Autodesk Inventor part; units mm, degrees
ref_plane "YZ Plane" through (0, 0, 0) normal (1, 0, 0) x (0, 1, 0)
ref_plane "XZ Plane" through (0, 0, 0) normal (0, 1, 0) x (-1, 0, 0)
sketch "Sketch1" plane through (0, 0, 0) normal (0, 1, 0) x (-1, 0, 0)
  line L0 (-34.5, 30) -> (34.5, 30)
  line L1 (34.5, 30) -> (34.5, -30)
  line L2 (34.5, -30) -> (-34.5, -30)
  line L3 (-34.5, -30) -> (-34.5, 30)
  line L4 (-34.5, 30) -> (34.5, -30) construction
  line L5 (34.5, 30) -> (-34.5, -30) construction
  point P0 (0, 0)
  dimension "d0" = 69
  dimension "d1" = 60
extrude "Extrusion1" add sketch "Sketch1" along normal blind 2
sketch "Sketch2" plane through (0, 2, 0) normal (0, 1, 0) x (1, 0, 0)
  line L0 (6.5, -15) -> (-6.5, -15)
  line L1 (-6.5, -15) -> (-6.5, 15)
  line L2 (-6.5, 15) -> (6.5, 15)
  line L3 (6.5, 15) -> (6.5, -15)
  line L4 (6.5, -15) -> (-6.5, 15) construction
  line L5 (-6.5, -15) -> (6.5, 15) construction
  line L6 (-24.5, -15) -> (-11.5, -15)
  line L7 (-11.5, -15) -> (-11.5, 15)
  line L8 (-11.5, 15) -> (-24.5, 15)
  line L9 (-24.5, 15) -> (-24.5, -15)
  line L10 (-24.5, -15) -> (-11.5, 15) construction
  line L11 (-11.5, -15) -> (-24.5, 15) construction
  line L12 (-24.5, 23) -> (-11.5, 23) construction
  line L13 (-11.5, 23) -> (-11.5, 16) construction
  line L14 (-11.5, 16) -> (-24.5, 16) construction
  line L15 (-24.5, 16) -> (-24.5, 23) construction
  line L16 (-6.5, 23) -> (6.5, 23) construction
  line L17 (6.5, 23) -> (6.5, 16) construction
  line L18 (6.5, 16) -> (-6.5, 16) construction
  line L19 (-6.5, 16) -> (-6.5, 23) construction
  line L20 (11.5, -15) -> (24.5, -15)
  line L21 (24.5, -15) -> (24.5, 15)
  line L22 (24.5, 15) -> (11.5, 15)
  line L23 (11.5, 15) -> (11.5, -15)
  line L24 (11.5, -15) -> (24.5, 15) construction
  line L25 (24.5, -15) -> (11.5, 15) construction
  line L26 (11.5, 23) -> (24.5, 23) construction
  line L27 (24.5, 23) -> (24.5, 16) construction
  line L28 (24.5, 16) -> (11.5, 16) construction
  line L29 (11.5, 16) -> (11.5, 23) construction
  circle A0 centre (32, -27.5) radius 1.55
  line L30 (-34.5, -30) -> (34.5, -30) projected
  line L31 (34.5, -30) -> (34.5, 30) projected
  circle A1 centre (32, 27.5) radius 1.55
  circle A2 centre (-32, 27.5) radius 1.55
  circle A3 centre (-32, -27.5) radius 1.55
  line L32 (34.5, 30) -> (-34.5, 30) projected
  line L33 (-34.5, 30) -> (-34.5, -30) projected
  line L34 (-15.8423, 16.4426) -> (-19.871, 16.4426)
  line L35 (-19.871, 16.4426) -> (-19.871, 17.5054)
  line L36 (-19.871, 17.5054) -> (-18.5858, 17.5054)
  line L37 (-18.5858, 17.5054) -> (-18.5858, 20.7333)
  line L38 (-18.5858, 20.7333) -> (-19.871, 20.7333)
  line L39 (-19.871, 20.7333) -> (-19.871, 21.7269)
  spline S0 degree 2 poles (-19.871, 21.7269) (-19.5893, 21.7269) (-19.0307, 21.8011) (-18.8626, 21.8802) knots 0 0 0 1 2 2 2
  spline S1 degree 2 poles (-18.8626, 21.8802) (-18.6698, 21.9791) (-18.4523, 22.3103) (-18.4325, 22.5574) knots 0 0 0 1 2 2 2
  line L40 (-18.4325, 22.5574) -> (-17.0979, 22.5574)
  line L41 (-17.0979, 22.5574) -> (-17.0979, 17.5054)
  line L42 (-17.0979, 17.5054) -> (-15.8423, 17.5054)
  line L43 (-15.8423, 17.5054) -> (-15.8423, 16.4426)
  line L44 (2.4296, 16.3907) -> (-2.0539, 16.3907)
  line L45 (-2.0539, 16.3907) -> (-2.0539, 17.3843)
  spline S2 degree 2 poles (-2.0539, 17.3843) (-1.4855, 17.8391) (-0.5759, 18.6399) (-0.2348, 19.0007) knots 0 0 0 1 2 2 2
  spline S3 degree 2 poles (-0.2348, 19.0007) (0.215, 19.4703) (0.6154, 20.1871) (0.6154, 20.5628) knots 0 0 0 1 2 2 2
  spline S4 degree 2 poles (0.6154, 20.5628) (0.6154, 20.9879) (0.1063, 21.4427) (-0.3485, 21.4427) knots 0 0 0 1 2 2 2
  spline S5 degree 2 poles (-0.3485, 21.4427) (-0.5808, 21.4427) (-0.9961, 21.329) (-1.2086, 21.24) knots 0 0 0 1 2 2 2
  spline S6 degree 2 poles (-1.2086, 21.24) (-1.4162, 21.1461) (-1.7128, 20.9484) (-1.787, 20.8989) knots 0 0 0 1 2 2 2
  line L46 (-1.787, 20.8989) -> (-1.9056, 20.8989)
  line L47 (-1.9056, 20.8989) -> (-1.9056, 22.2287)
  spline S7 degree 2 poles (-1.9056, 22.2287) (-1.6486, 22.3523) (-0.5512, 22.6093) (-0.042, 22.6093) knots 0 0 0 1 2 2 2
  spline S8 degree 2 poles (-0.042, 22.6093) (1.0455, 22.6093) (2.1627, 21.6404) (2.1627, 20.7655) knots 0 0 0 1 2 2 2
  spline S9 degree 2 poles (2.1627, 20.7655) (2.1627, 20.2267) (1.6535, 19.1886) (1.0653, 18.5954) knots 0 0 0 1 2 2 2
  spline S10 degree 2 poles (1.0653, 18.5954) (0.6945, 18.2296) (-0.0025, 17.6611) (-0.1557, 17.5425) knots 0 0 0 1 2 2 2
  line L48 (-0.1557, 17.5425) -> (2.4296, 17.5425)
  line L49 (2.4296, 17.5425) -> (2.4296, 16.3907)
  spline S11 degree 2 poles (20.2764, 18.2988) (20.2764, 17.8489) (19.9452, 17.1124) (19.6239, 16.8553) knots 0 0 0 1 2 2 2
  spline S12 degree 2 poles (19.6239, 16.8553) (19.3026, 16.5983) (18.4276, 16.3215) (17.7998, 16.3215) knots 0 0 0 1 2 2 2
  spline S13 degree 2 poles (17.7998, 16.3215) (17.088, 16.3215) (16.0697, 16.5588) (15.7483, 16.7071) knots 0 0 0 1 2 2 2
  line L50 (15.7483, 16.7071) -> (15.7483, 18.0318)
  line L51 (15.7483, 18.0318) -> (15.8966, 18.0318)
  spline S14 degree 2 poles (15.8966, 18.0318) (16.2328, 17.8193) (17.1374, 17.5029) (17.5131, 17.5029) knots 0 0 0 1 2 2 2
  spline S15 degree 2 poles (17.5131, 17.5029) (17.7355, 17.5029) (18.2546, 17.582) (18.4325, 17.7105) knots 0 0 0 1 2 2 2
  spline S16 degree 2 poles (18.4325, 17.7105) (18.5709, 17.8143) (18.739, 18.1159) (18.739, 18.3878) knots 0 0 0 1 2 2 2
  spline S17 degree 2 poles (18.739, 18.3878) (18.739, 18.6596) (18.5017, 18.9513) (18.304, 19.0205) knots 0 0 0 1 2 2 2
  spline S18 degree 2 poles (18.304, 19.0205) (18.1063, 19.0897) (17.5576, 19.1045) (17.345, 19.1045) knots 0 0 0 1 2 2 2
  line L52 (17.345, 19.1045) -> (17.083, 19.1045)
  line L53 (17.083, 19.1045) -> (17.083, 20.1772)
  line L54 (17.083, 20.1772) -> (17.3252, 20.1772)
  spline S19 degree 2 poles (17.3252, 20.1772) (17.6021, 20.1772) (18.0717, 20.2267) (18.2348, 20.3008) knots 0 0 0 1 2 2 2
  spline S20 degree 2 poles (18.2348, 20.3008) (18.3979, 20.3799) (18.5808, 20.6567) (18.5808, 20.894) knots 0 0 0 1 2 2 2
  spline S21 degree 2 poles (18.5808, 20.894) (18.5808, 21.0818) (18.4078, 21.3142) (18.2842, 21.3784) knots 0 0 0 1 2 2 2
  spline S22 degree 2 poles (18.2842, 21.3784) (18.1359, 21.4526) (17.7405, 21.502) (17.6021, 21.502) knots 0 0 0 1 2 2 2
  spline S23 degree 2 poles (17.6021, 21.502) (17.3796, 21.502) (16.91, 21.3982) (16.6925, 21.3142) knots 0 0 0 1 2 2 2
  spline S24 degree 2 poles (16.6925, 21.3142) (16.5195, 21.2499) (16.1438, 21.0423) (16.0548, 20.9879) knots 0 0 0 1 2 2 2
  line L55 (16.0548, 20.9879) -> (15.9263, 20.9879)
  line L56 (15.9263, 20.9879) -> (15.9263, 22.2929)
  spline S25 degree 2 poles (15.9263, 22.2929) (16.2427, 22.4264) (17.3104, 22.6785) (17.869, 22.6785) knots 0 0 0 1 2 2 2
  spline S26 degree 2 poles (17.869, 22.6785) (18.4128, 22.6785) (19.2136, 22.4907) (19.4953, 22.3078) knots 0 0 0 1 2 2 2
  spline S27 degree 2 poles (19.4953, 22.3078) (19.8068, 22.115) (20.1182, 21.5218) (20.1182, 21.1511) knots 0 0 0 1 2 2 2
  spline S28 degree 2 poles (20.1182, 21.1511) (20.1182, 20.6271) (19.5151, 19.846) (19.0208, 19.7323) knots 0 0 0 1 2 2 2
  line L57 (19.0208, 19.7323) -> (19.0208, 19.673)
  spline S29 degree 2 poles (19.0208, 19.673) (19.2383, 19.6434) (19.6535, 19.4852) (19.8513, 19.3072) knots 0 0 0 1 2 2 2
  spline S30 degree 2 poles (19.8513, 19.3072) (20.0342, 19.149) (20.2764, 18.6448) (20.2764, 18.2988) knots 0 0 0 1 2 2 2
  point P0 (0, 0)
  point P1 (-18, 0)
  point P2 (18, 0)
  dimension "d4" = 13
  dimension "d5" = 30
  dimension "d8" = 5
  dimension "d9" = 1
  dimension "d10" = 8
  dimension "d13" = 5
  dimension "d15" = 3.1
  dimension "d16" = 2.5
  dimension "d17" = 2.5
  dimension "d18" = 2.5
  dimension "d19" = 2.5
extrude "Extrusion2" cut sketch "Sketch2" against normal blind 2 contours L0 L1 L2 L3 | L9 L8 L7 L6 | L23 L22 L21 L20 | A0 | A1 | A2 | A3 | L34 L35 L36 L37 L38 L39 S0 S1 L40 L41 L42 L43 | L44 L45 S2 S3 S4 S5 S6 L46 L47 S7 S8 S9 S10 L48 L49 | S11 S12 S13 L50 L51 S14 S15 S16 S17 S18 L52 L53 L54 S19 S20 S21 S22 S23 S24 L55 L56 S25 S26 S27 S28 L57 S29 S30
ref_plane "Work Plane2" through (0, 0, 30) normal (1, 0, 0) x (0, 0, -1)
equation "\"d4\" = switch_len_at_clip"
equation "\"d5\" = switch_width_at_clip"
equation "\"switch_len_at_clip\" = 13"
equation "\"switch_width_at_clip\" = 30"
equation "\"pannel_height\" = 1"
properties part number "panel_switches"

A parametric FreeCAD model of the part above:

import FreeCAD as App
import Part
import Sketcher

V = App.Vector


def add_polygon(sketch, points):
    """Adds a closed chain of lines whose ends are joined by coincident constraints."""
    first, n = sketch.GeometryCount, len(points)
    for a, b in zip(points, points[1:] + points[:1]):
        sketch.addGeometry(Part.LineSegment(App.Vector(*a, 0), App.Vector(*b, 0)), False)
    for i in range(n):
        sketch.addConstraint(Sketcher.Constraint("Coincident", first + i, 2, first + (i + 1) % n, 1))

doc = App.newDocument("Part")
body = doc.addObject("PartDesign::Body", "Body")

sketch1 = body.newObject("Sketcher::SketchObject", "Sketch")
sketch1.AttachmentSupport = (doc.getObject("XZ_Plane"), [""])
sketch1.MapMode = "FlatFace"
add_polygon(sketch1, [(-34.5, 30), (34.5, 30), (34.5, -30), (-34.5, -30)])
sketch1.addConstraint(Sketcher.Constraint("Horizontal", 0))
sketch1.addConstraint(Sketcher.Constraint("Vertical", 1))
sketch1.addConstraint(Sketcher.Constraint("Horizontal", 2))
sketch1.addConstraint(Sketcher.Constraint("Vertical", 3))
sketch1.addConstraint(Sketcher.Constraint("Symmetric", 0, 2, 2, 2, -1, 1))
sketch1.addConstraint(Sketcher.Constraint("DistanceX", 0, 1, 0, 2, 69.0))
sketch1.addConstraint(Sketcher.Constraint("DistanceY", 1, 2, 1, 1, 60.0))
pad1 = body.newObject("PartDesign::Pad", "Pad")
pad1.Profile = sketch1
pad1.Length = 2
pad1.Reversed = True

sketch2 = body.newObject("Sketcher::SketchObject", "Sketch001")
sketch2.AttachmentSupport = (doc.getObject("XZ_Plane"), [""])
sketch2.MapMode = "FlatFace"
sketch2.AttachmentOffset = App.Placement(V(0, 0, -2), App.Rotation())
add_polygon(sketch2, [(-6.5, 15), (6.5, 15), (6.5, -15), (-6.5, -15)])
add_polygon(sketch2, [(-24.5, -15), (-24.5, 15), (-11.5, 15), (-11.5, -15)])
add_polygon(sketch2, [(11.5, -15), (11.5, 15), (24.5, 15), (24.5, -15)])
sketch2.addGeometry(Part.Circle(V(32, 27.5, 0), V(0, 0, 1), 1.55), False)
sketch2.addGeometry(Part.Circle(V(32, -27.5, 0), V(0, 0, 1), 1.55), False)
sketch2.addGeometry(Part.Circle(V(-32, -27.5, 0), V(0, 0, 1), 1.55), False)
sketch2.addGeometry(Part.Circle(V(-32, 27.5, 0), V(0, 0, 1), 1.55), False)
sketch2.addGeometry(Part.LineSegment(V(-19.871, -16.4426, 0), V(-15.8423, -16.4426, 0)), False)
sketch2.addGeometry(Part.LineSegment(V(-15.8423, -16.4426, 0), V(-15.8423, -17.5054, 0)), False)
sketch2.addGeometry(Part.LineSegment(V(-15.8423, -17.5054, 0), V(-17.0979, -17.5054, 0)), False)
sketch2.addGeometry(Part.LineSegment(V(-17.0979, -17.5054, 0), V(-17.0979, -22.5574, 0)), False)
sketch2.addGeometry(Part.LineSegment(V(-17.0979, -22.5574, 0), V(-18.4325, -22.5574, 0)), False)
sketch2.addGeometry(Part.BSplineCurve([V(-18.8626, -21.8802, 0), V(-18.6698, -21.9791, 0), V(-18.4523, -22.3103, 0), V(-18.4325, -22.5574, 0)], [3, 1, 3], [0, 1, 2], False, 2, [1, 1, 1, 1], False), False)
sketch2.addGeometry(Part.BSplineCurve([V(-19.871, -21.7269, 0), V(-19.5893, -21.7269, 0), V(-19.0307, -21.8011, 0), V(-18.8626, -21.8802, 0)], [3, 1, 3], [0, 1, 2], False, 2, [1, 1, 1, 1], False), False)
sketch2.addGeometry(Part.LineSegment(V(-19.871, -21.7269, 0), V(-19.871, -20.7333, 0)), False)
sketch2.addGeometry(Part.LineSegment(V(-19.871, -20.7333, 0), V(-18.5858, -20.7333, 0)), False)
sketch2.addGeometry(Part.LineSegment(V(-18.5858, -20.7333, 0), V(-18.5858, -17.5054, 0)), False)
sketch2.addGeometry(Part.LineSegment(V(-18.5858, -17.5054, 0), V(-19.871, -17.5054, 0)), False)
sketch2.addGeometry(Part.LineSegment(V(-19.871, -17.5054, 0), V(-19.871, -16.4426, 0)), False)
sketch2.addGeometry(Part.LineSegment(V(-2.0539, -16.3907, 0), V(2.4296, -16.3907, 0)), False)
sketch2.addGeometry(Part.LineSegment(V(2.4296, -16.3907, 0), V(2.4296, -17.5425, 0)), False)
sketch2.addGeometry(Part.LineSegment(V(2.4296, -17.5425, 0), V(-0.1557, -17.5425, 0)), False)
sketch2.addGeometry(Part.BSplineCurve([V(1.0653, -18.5954, 0), V(0.6945, -18.2296, 0), V(-0.0025, -17.6611, 0), V(-0.1557, -17.5425, 0)], [3, 1, 3], [0, 1, 2], False, 2, [1, 1, 1, 1], False), False)
sketch2.addGeometry(Part.BSplineCurve([V(2.1627, -20.7655, 0), V(2.1627, -20.2267, 0), V(1.6535, -19.1886, 0), V(1.0653, -18.5954, 0)], [3, 1, 3], [0, 1, 2], False, 2, [1, 1, 1, 1], False), False)
sketch2.addGeometry(Part.BSplineCurve([V(-0.042, -22.6093, 0), V(1.0455, -22.6093, 0), V(2.1627, -21.6404, 0), V(2.1627, -20.7655, 0)], [3, 1, 3], [0, 1, 2], False, 2, [1, 1, 1, 1], False), False)
sketch2.addGeometry(Part.BSplineCurve([V(-1.9056, -22.2287, 0), V(-1.6486, -22.3523, 0), V(-0.5512, -22.6093, 0), V(-0.042, -22.6093, 0)], [3, 1, 3], [0, 1, 2], False, 2, [1, 1, 1, 1], False), False)
sketch2.addGeometry(Part.LineSegment(V(-1.9056, -22.2287, 0), V(-1.9056, -20.8989, 0)), False)
sketch2.addGeometry(Part.LineSegment(V(-1.9056, -20.8989, 0), V(-1.787, -20.8989, 0)), False)
sketch2.addGeometry(Part.BSplineCurve([V(-1.2086, -21.24, 0), V(-1.4162, -21.1461, 0), V(-1.7128, -20.9484, 0), V(-1.787, -20.8989, 0)], [3, 1, 3], [0, 1, 2], False, 2, [1, 1, 1, 1], False), False)
sketch2.addGeometry(Part.BSplineCurve([V(-0.3485, -21.4427, 0), V(-0.5808, -21.4427, 0), V(-0.9961, -21.329, 0), V(-1.2086, -21.24, 0)], [3, 1, 3], [0, 1, 2], False, 2, [1, 1, 1, 1], False), False)
sketch2.addGeometry(Part.BSplineCurve([V(0.6154, -20.5628, 0), V(0.6154, -20.9879, 0), V(0.1063, -21.4427, 0), V(-0.3485, -21.4427, 0)], [3, 1, 3], [0, 1, 2], False, 2, [1, 1, 1, 1], False), False)
sketch2.addGeometry(Part.BSplineCurve([V(-0.2348, -19.0007, 0), V(0.215, -19.4703, 0), V(0.6154, -20.1871, 0), V(0.6154, -20.5628, 0)], [3, 1, 3], [0, 1, 2], False, 2, [1, 1, 1, 1], False), False)
sketch2.addGeometry(Part.BSplineCurve([V(-2.0539, -17.3843, 0), V(-1.4855, -17.8391, 0), V(-0.5759, -18.6399, 0), V(-0.2348, -19.0007, 0)], [3, 1, 3], [0, 1, 2], False, 2, [1, 1, 1, 1], False), False)
sketch2.addGeometry(Part.LineSegment(V(-2.0539, -17.3843, 0), V(-2.0539, -16.3907, 0)), False)
sketch2.addGeometry(Part.BSplineCurve([V(20.2764, -18.2988, 0), V(20.2764, -17.8489, 0), V(19.9452, -17.1124, 0), V(19.6239, -16.8553, 0)], [3, 1, 3], [0, 1, 2], False, 2, [1, 1, 1, 1], False), False)
sketch2.addGeometry(Part.BSplineCurve([V(19.8513, -19.3072, 0), V(20.0342, -19.149, 0), V(20.2764, -18.6448, 0), V(20.2764, -18.2988, 0)], [3, 1, 3], [0, 1, 2], False, 2, [1, 1, 1, 1], False), False)
sketch2.addGeometry(Part.BSplineCurve([V(19.0208, -19.673, 0), V(19.2383, -19.6434, 0), V(19.6535, -19.4852, 0), V(19.8513, -19.3072, 0)], [3, 1, 3], [0, 1, 2], False, 2, [1, 1, 1, 1], False), False)
sketch2.addGeometry(Part.LineSegment(V(19.0208, -19.673, 0), V(19.0208, -19.7323, 0)), False)
sketch2.addGeometry(Part.BSplineCurve([V(20.1182, -21.1511, 0), V(20.1182, -20.6271, 0), V(19.5151, -19.846, 0), V(19.0208, -19.7323, 0)], [3, 1, 3], [0, 1, 2], False, 2, [1, 1, 1, 1], False), False)
sketch2.addGeometry(Part.BSplineCurve([V(19.4953, -22.3078, 0), V(19.8068, -22.115, 0), V(20.1182, -21.5218, 0), V(20.1182, -21.1511, 0)], [3, 1, 3], [0, 1, 2], False, 2, [1, 1, 1, 1], False), False)
sketch2.addGeometry(Part.BSplineCurve([V(17.869, -22.6785, 0), V(18.4128, -22.6785, 0), V(19.2136, -22.4907, 0), V(19.4953, -22.3078, 0)], [3, 1, 3], [0, 1, 2], False, 2, [1, 1, 1, 1], False), False)
sketch2.addGeometry(Part.BSplineCurve([V(15.9263, -22.2929, 0), V(16.2427, -22.4264, 0), V(17.3104, -22.6785, 0), V(17.869, -22.6785, 0)], [3, 1, 3], [0, 1, 2], False, 2, [1, 1, 1, 1], False), False)
sketch2.addGeometry(Part.LineSegment(V(15.9263, -22.2929, 0), V(15.9263, -20.9879, 0)), False)
sketch2.addGeometry(Part.LineSegment(V(15.9263, -20.9879, 0), V(16.0548, -20.9879, 0)), False)
sketch2.addGeometry(Part.BSplineCurve([V(16.6925, -21.3142, 0), V(16.5195, -21.2499, 0), V(16.1438, -21.0423, 0), V(16.0548, -20.9879, 0)], [3, 1, 3], [0, 1, 2], False, 2, [1, 1, 1, 1], False), False)
sketch2.addGeometry(Part.BSplineCurve([V(17.6021, -21.502, 0), V(17.3796, -21.502, 0), V(16.91, -21.3982, 0), V(16.6925, -21.3142, 0)], [3, 1, 3], [0, 1, 2], False, 2, [1, 1, 1, 1], False), False)
sketch2.addGeometry(Part.BSplineCurve([V(18.2842, -21.3784, 0), V(18.1359, -21.4526, 0), V(17.7405, -21.502, 0), V(17.6021, -21.502, 0)], [3, 1, 3], [0, 1, 2], False, 2, [1, 1, 1, 1], False), False)
sketch2.addGeometry(Part.BSplineCurve([V(18.5808, -20.894, 0), V(18.5808, -21.0818, 0), V(18.4078, -21.3142, 0), V(18.2842, -21.3784, 0)], [3, 1, 3], [0, 1, 2], False, 2, [1, 1, 1, 1], False), False)
sketch2.addGeometry(Part.BSplineCurve([V(18.2348, -20.3008, 0), V(18.3979, -20.3799, 0), V(18.5808, -20.6567, 0), V(18.5808, -20.894, 0)], [3, 1, 3], [0, 1, 2], False, 2, [1, 1, 1, 1], False), False)
sketch2.addGeometry(Part.BSplineCurve([V(17.3252, -20.1772, 0), V(17.6021, -20.1772, 0), V(18.0717, -20.2267, 0), V(18.2348, -20.3008, 0)], [3, 1, 3], [0, 1, 2], False, 2, [1, 1, 1, 1], False), False)
sketch2.addGeometry(Part.LineSegment(V(17.3252, -20.1772, 0), V(17.083, -20.1772, 0)), False)
sketch2.addGeometry(Part.LineSegment(V(17.083, -20.1772, 0), V(17.083, -19.1045, 0)), False)
sketch2.addGeometry(Part.LineSegment(V(17.083, -19.1045, 0), V(17.345, -19.1045, 0)), False)
sketch2.addGeometry(Part.BSplineCurve([V(18.304, -19.0205, 0), V(18.1063, -19.0897, 0), V(17.5576, -19.1045, 0), V(17.345, -19.1045, 0)], [3, 1, 3], [0, 1, 2], False, 2, [1, 1, 1, 1], False), False)
sketch2.addGeometry(Part.BSplineCurve([V(18.739, -18.3878, 0), V(18.739, -18.6596, 0), V(18.5017, -18.9513, 0), V(18.304, -19.0205, 0)], [3, 1, 3], [0, 1, 2], False, 2, [1, 1, 1, 1], False), False)
sketch2.addGeometry(Part.BSplineCurve([V(18.4325, -17.7105, 0), V(18.5709, -17.8143, 0), V(18.739, -18.1159, 0), V(18.739, -18.3878, 0)], [3, 1, 3], [0, 1, 2], False, 2, [1, 1, 1, 1], False), False)
sketch2.addGeometry(Part.BSplineCurve([V(17.5131, -17.5029, 0), V(17.7355, -17.5029, 0), V(18.2546, -17.582, 0), V(18.4325, -17.7105, 0)], [3, 1, 3], [0, 1, 2], False, 2, [1, 1, 1, 1], False), False)
sketch2.addGeometry(Part.BSplineCurve([V(15.8966, -18.0318, 0), V(16.2328, -17.8193, 0), V(17.1374, -17.5029, 0), V(17.5131, -17.5029, 0)], [3, 1, 3], [0, 1, 2], False, 2, [1, 1, 1, 1], False), False)
sketch2.addGeometry(Part.LineSegment(V(15.8966, -18.0318, 0), V(15.7483, -18.0318, 0)), False)
sketch2.addGeometry(Part.LineSegment(V(15.7483, -18.0318, 0), V(15.7483, -16.7071, 0)), False)
sketch2.addGeometry(Part.BSplineCurve([V(17.7998, -16.3215, 0), V(17.088, -16.3215, 0), V(16.0697, -16.5588, 0), V(15.7483, -16.7071, 0)], [3, 1, 3], [0, 1, 2], False, 2, [1, 1, 1, 1], False), False)
sketch2.addGeometry(Part.BSplineCurve([V(19.6239, -16.8553, 0), V(19.3026, -16.5983, 0), V(18.4276, -16.3215, 0), V(17.7998, -16.3215, 0)], [3, 1, 3], [0, 1, 2], False, 2, [1, 1, 1, 1], False), False)
sketch2.addConstraint(Sketcher.Constraint("Block", 21))
sketch2.addConstraint(Sketcher.Constraint("Block", 22))
sketch2.addConstraint(Sketcher.Constraint("Block", 31))
sketch2.addConstraint(Sketcher.Constraint("Block", 32))
sketch2.addConstraint(Sketcher.Constraint("Block", 33))
sketch2.addConstraint(Sketcher.Constraint("Block", 34))
sketch2.addConstraint(Sketcher.Constraint("Block", 37))
sketch2.addConstraint(Sketcher.Constraint("Block", 38))
sketch2.addConstraint(Sketcher.Constraint("Block", 39))
sketch2.addConstraint(Sketcher.Constraint("Block", 40))
sketch2.addConstraint(Sketcher.Constraint("Block", 41))
sketch2.addConstraint(Sketcher.Constraint("Block", 43))
sketch2.addConstraint(Sketcher.Constraint("Block", 44))
sketch2.addConstraint(Sketcher.Constraint("Block", 45))
sketch2.addConstraint(Sketcher.Constraint("Block", 47))
sketch2.addConstraint(Sketcher.Constraint("Block", 48))
sketch2.addConstraint(Sketcher.Constraint("Block", 49))
sketch2.addConstraint(Sketcher.Constraint("Block", 50))
sketch2.addConstraint(Sketcher.Constraint("Block", 53))
sketch2.addConstraint(Sketcher.Constraint("Block", 54))
sketch2.addConstraint(Sketcher.Constraint("Block", 55))
sketch2.addConstraint(Sketcher.Constraint("Block", 56))
sketch2.addConstraint(Sketcher.Constraint("Block", 57))
sketch2.addConstraint(Sketcher.Constraint("Block", 58))
sketch2.addConstraint(Sketcher.Constraint("Block", 62))
sketch2.addConstraint(Sketcher.Constraint("Block", 63))
sketch2.addConstraint(Sketcher.Constraint("Block", 64))
sketch2.addConstraint(Sketcher.Constraint("Block", 65))
sketch2.addConstraint(Sketcher.Constraint("Block", 66))
sketch2.addConstraint(Sketcher.Constraint("Block", 69))
sketch2.addConstraint(Sketcher.Constraint("Block", 70))
sketch2.addConstraint(Sketcher.Constraint("Coincident", 16, 2, 17, 1))
sketch2.addConstraint(Sketcher.Constraint("Coincident", 17, 2, 18, 1))
sketch2.addConstraint(Sketcher.Constraint("Coincident", 18, 2, 19, 1))
sketch2.addConstraint(Sketcher.Constraint("Coincident", 19, 2, 20, 1))
sketch2.addConstraint(Sketcher.Constraint("Coincident", 20, 2, 21, 2))
sketch2.addConstraint(Sketcher.Constraint("Coincident", 22, 1, 23, 1))
sketch2.addConstraint(Sketcher.Constraint("Coincident", 23, 2, 24, 1))
sketch2.addConstraint(Sketcher.Constraint("Coincident", 24, 2, 25, 1))
sketch2.addConstraint(Sketcher.Constraint("Coincident", 25, 2, 26, 1))
sketch2.addConstraint(Sketcher.Constraint("Coincident", 26, 2, 27, 1))
sketch2.addConstraint(Sketcher.Constraint("Coincident", 27, 2, 16, 1))
sketch2.addConstraint(Sketcher.Constraint("Coincident", 28, 2, 29, 1))
sketch2.addConstraint(Sketcher.Constraint("Coincident", 29, 2, 30, 1))
sketch2.addConstraint(Sketcher.Constraint("Coincident", 30, 2, 31, 2))
sketch2.addConstraint(Sketcher.Constraint("Coincident", 34, 1, 35, 1))
sketch2.addConstraint(Sketcher.Constraint("Coincident", 35, 2, 36, 1))
sketch2.addConstraint(Sketcher.Constraint("Coincident", 36, 2, 37, 2))
sketch2.addConstraint(Sketcher.Constraint("Coincident", 41, 1, 42, 1))
sketch2.addConstraint(Sketcher.Constraint("Coincident", 42, 2, 28, 1))
sketch2.addConstraint(Sketcher.Constraint("Coincident", 45, 1, 46, 1))
sketch2.addConstraint(Sketcher.Constraint("Coincident", 46, 2, 47, 2))
sketch2.addConstraint(Sketcher.Constraint("Coincident", 50, 1, 51, 1))
sketch2.addConstraint(Sketcher.Constraint("Coincident", 51, 2, 52, 1))
sketch2.addConstraint(Sketcher.Constraint("Coincident", 52, 2, 53, 2))
sketch2.addConstraint(Sketcher.Constraint("Coincident", 58, 1, 59, 1))
sketch2.addConstraint(Sketcher.Constraint("Coincident", 59, 2, 60, 1))
sketch2.addConstraint(Sketcher.Constraint("Coincident", 60, 2, 61, 1))
sketch2.addConstraint(Sketcher.Constraint("Coincident", 61, 2, 62, 2))
sketch2.addConstraint(Sketcher.Constraint("Coincident", 66, 1, 67, 1))
sketch2.addConstraint(Sketcher.Constraint("Coincident", 67, 2, 68, 1))
sketch2.addConstraint(Sketcher.Constraint("Coincident", 68, 2, 69, 2))
sketch2.addConstraint(Sketcher.Constraint("Horizontal", 0))
sketch2.addConstraint(Sketcher.Constraint("Vertical", 1))
sketch2.addConstraint(Sketcher.Constraint("Horizontal", 2))
sketch2.addConstraint(Sketcher.Constraint("Vertical", 3))
sketch2.addConstraint(Sketcher.Constraint("Vertical", 4))
sketch2.addConstraint(Sketcher.Constraint("Horizontal", 5))
sketch2.addConstraint(Sketcher.Constraint("Vertical", 6))
sketch2.addConstraint(Sketcher.Constraint("Horizontal", 7))
sketch2.addConstraint(Sketcher.Constraint("Vertical", 8))
sketch2.addConstraint(Sketcher.Constraint("Horizontal", 9))
sketch2.addConstraint(Sketcher.Constraint("Vertical", 10))
sketch2.addConstraint(Sketcher.Constraint("Horizontal", 11))
sketch2.addConstraint(Sketcher.Constraint("Horizontal", 16))
sketch2.addConstraint(Sketcher.Constraint("Vertical", 17))
sketch2.addConstraint(Sketcher.Constraint("Horizontal", 18))
sketch2.addConstraint(Sketcher.Constraint("Vertical", 19))
sketch2.addConstraint(Sketcher.Constraint("Horizontal", 20))
sketch2.addConstraint(Sketcher.Constraint("Vertical", 23))
sketch2.addConstraint(Sketcher.Constraint("Horizontal", 24))
sketch2.addConstraint(Sketcher.Constraint("Vertical", 25))
sketch2.addConstraint(Sketcher.Constraint("Horizontal", 26))
sketch2.addConstraint(Sketcher.Constraint("Vertical", 27))
sketch2.addConstraint(Sketcher.Constraint("Horizontal", 28))
sketch2.addConstraint(Sketcher.Constraint("Vertical", 29))
sketch2.addConstraint(Sketcher.Constraint("Horizontal", 30))
sketch2.addConstraint(Sketcher.Constraint("Vertical", 35))
sketch2.addConstraint(Sketcher.Constraint("Horizontal", 36))
sketch2.addConstraint(Sketcher.Constraint("Vertical", 42))
sketch2.addConstraint(Sketcher.Constraint("Vertical", 51))
sketch2.addConstraint(Sketcher.Constraint("Horizontal", 52))
sketch2.addConstraint(Sketcher.Constraint("Horizontal", 59))
sketch2.addConstraint(Sketcher.Constraint("Vertical", 60))
sketch2.addConstraint(Sketcher.Constraint("Horizontal", 61))
sketch2.addConstraint(Sketcher.Constraint("Horizontal", 67))
sketch2.addConstraint(Sketcher.Constraint("Vertical", 68))
sketch2.addConstraint(Sketcher.Constraint("Diameter", 12, 3.1))
sketch2.addConstraint(Sketcher.Constraint("Diameter", 13, 3.1))
sketch2.addConstraint(Sketcher.Constraint("Diameter", 14, 3.1))
sketch2.addConstraint(Sketcher.Constraint("Diameter", 15, 3.1))
sketch2.addConstraint(Sketcher.Constraint("DistanceX", 0, 1, 0, 2, 13.0))
sketch2.addConstraint(Sketcher.Constraint("DistanceX", 5, 1, 5, 2, 13.0))
sketch2.addConstraint(Sketcher.Constraint("DistanceX", 9, 1, 9, 2, 13.0))
sketch2.addConstraint(Sketcher.Constraint("DistanceY", 1, 2, 1, 1, 30.0))
sketch2.addConstraint(Sketcher.Constraint("DistanceY", 4, 1, 4, 2, 30.0))
sketch2.addConstraint(Sketcher.Constraint("DistanceY", 8, 1, 8, 2, 30.0))
sketch2.addConstraint(Sketcher.Constraint("DistanceY", 2, 2, 4, 2, 30.0))
sketch2.addConstraint(Sketcher.Constraint("DistanceX", 5, 2, 3, 2, 5.0))
sketch2.addConstraint(Sketcher.Constraint("DistanceX", 0, 2, 8, 2, 5.0))
sketch2.addConstraint(Sketcher.Constraint("DistanceY", 1, 2, 8, 2, 30.0))
sketch2.addConstraint(Sketcher.Constraint("DistanceX", -1, 1, 12, 3, 32.0))
sketch2.addConstraint(Sketcher.Constraint("DistanceX", -1, 1, 13, 3, 32.0))
sketch2.addConstraint(Sketcher.Constraint("DistanceX", 14, 3, -1, 1, 32.0))
sketch2.addConstraint(Sketcher.Constraint("DistanceX", 15, 3, -1, 1, 32.0))
sketch2.addConstraint(Sketcher.Constraint("DistanceY", -1, 1, 0, 2, 15.0))
sketch2.addConstraint(Sketcher.Constraint("DistanceY", 13, 3, 12, 3, 55.0))
sketch2.addConstraint(Sketcher.Constraint("DistanceY", 14, 3, 12, 3, 55.0))
sketch2.addConstraint(Sketcher.Constraint("DistanceY", 14, 3, 15, 3, 55.0))
sketch2.addConstraint(Sketcher.Constraint("DistanceY", -1, 1, 12, 3, 27.5))
sketch2.addConstraint(Sketcher.Constraint("DistanceX", -1, 1, 0, 2, 6.5))
sketch2.addConstraint(Sketcher.Constraint("DistanceX", 61, 1, 61, 2, 0.262))
sketch2.addConstraint(Sketcher.Constraint("DistanceY", 19, 2, 19, 1, 5.052))
sketch2.addConstraint(Sketcher.Constraint("DistanceY", 25, 1, 25, 2, 3.228))
sketch2.addConstraint(Sketcher.Constraint("DistanceX", 16, 1, 16, 2, 4.0287))
sketch2.addConstraint(Sketcher.Constraint("DistanceX", 18, 2, 18, 1, 1.2556))
sketch2.addConstraint(Sketcher.Constraint("DistanceX", 20, 2, 20, 1, 1.3346))
sketch2.addConstraint(Sketcher.Constraint("DistanceX", 24, 1, 24, 2, 1.2852))
sketch2.addConstraint(Sketcher.Constraint("DistanceX", 28, 1, 28, 2, 4.4835))
sketch2.addConstraint(Sketcher.Constraint("DistanceY", 17, 2, 17, 1, 1.0628))
sketch2.addConstraint(Sketcher.Constraint("DistanceY", 23, 1, 23, 2, 0.9936))
sketch2.addConstraint(Sketcher.Constraint("DistanceY", 29, 2, 29, 1, 1.1518))
pocket1 = body.newObject("PartDesign::Pocket", "Pocket")
pocket1.Profile = sketch2
pocket1.Length = 2
pocket1.Reversed = True

doc.recompute()
